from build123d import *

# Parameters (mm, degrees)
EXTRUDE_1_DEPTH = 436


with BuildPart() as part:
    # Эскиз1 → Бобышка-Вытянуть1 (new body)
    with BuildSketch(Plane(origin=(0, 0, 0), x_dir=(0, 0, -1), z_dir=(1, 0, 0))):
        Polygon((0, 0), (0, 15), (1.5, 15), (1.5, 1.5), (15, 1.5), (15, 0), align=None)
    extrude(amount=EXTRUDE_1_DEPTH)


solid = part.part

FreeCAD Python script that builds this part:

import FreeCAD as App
import Part
import Sketcher
from FreeCAD import Vector

doc = App.newDocument("Part")
body = doc.addObject("PartDesign::Body", "Body")

# Sketch on YZ plane
sketch1 = doc.addObject("Sketcher::SketchObject", "Sketch")
body.addObject(sketch1)
sketch1.AttachmentSupport = (doc.YZ_Plane, [""])
sketch1.MapMode = "FlatFace"
sketch1.addGeometry([
    Part.LineSegment(Vector(15, 0, 0), Vector(0, 0, 0)),  # 0
    Part.LineSegment(Vector(0, 0, 0), Vector(0, -15, 0)),  # 1
    Part.LineSegment(Vector(0, -15, 0), Vector(1.5, -15, 0)),  # 2
    Part.LineSegment(Vector(1.5, -15, 0), Vector(1.5, -1.5, 0)),  # 3
    Part.LineSegment(Vector(1.5, -1.5, 0), Vector(15, -1.5, 0)),  # 4
    Part.LineSegment(Vector(15, -1.5, 0), Vector(15, 0, 0)),  # 5
], False)
sketch1.addConstraint([
    Sketcher.Constraint("Coincident", 0, 2, 1, 1),
    Sketcher.Constraint("Coincident", 1, 2, 2, 1),
    Sketcher.Constraint("Coincident", 2, 2, 3, 1),
    Sketcher.Constraint("Coincident", 3, 2, 4, 1),
    Sketcher.Constraint("Coincident", 4, 2, 5, 1),
    Sketcher.Constraint("Coincident", 5, 2, 0, 1),
    Sketcher.Constraint("Horizontal", 0),
    Sketcher.Constraint("Vertical", 1),
    Sketcher.Constraint("Horizontal", 2),
    Sketcher.Constraint("Vertical", 3),
    Sketcher.Constraint("Horizontal", 4),
    Sketcher.Constraint("Vertical", 5),
    Sketcher.Constraint("Coincident", 0, 2, -1, 1),
    Sketcher.Constraint("Equal", 0, 1),
    Sketcher.Constraint("Equal", 4, 3),
    Sketcher.Constraint("DistanceX", 0, 2, 0, 1, 15.0),
    Sketcher.Constraint("DistanceX", 2, 1, 2, 2, 1.5),
])
pad1 = doc.addObject("PartDesign::Pad", "Pad")
body.addObject(pad1)
pad1.Profile = sketch1
pad1.Length = 436

doc.recompute()
